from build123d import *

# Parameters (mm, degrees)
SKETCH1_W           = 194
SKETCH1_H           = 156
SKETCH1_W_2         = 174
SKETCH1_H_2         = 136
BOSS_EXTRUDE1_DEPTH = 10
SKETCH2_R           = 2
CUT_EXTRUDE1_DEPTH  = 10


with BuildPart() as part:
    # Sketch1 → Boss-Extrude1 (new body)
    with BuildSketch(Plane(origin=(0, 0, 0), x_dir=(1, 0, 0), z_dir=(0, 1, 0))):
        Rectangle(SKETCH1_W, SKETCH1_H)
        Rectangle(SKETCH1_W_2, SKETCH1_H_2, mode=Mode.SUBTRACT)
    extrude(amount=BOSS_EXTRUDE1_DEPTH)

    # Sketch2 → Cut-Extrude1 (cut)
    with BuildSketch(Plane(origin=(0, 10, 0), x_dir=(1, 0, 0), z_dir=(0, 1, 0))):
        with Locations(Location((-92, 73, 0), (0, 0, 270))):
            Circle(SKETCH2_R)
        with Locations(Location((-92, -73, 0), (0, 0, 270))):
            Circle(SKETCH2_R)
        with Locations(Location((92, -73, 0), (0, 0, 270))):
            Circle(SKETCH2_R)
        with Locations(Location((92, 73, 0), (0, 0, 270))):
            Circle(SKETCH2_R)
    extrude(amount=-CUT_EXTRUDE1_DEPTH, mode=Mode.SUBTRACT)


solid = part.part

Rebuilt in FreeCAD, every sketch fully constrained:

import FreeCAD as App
import Part
import Sketcher
Q = App.Units.Quantity

doc = App.newDocument("Part")
params = doc.addObject("Spreadsheet::Sheet", "Params")
for row, (alias, value) in enumerate([
    ("sketch1_width", "194 mm"),
    ("sketch1_width2", "174 mm"),
    ("sketch1_height", "156 mm"),
    ("sketch1_height2", "136 mm"),
    ("pad1_length", "10 mm"),
    ("sketch2_diameter", "4 mm"),
    ("pocket1_length", "10 mm"),
], start=1):
    params.set(f"A{row}", alias)
    params.set(f"B{row}", "=" + value)
    params.setAlias(f"B{row}", alias)

body = doc.addObject("PartDesign::Body", "Body")

# Sketch on XZ plane
sketch1 = body.newObject("Sketcher::SketchObject", "Sketch")
sketch1.AttachmentSupport = (doc.getObject("XZ_Plane"), [""])
sketch1.MapMode = "FlatFace"
sketch1.addGeometry(Part.LineSegment(App.Vector(-97, -78, 0), App.Vector(-97, 78, 0)), False)
sketch1.addGeometry(Part.LineSegment(App.Vector(-97, 78, 0), App.Vector(97, 78, 0)), False)
sketch1.addGeometry(Part.LineSegment(App.Vector(97, 78, 0), App.Vector(97, -78, 0)), False)
sketch1.addGeometry(Part.LineSegment(App.Vector(97, -78, 0), App.Vector(-97, -78, 0)), False)
sketch1.addGeometry(Part.LineSegment(App.Vector(87, 68, 0), App.Vector(-87, 68, 0)), False)
sketch1.addGeometry(Part.LineSegment(App.Vector(-87, 68, 0), App.Vector(-87, -68, 0)), False)
sketch1.addGeometry(Part.LineSegment(App.Vector(-87, -68, 0), App.Vector(87, -68, 0)), False)
sketch1.addGeometry(Part.LineSegment(App.Vector(87, -68, 0), App.Vector(87, 68, 0)), False)
sketch1.addConstraint(Sketcher.Constraint("Coincident", 0, 2, 1, 1))
sketch1.addConstraint(Sketcher.Constraint("Coincident", 1, 2, 2, 1))
sketch1.addConstraint(Sketcher.Constraint("Coincident", 2, 2, 3, 1))
sketch1.addConstraint(Sketcher.Constraint("Coincident", 3, 2, 0, 1))
sketch1.addConstraint(Sketcher.Constraint("Coincident", 4, 2, 5, 1))
sketch1.addConstraint(Sketcher.Constraint("Coincident", 5, 2, 6, 1))
sketch1.addConstraint(Sketcher.Constraint("Coincident", 6, 2, 7, 1))
sketch1.addConstraint(Sketcher.Constraint("Coincident", 7, 2, 4, 1))
sketch1.addConstraint(Sketcher.Constraint("Vertical", 0))
sketch1.addConstraint(Sketcher.Constraint("Horizontal", 1))
sketch1.addConstraint(Sketcher.Constraint("Vertical", 2))
sketch1.addConstraint(Sketcher.Constraint("Horizontal", 3))
sketch1.addConstraint(Sketcher.Constraint("Horizontal", 4))
sketch1.addConstraint(Sketcher.Constraint("Vertical", 5))
sketch1.addConstraint(Sketcher.Constraint("Horizontal", 6))
sketch1.addConstraint(Sketcher.Constraint("Vertical", 7))
sketch1.addConstraint(Sketcher.Constraint("Symmetric", 0, 2, 2, 2, -1, 1))
sketch1.addConstraint(Sketcher.Constraint("Symmetric", 4, 2, 6, 2, -1, 1))
sketch1.addConstraint(Sketcher.Constraint("DistanceX", 1, 1, 1, 2, Q("194 mm")))
sketch1.addConstraint(Sketcher.Constraint("DistanceX", 4, 2, 4, 1, Q("174 mm")))
sketch1.addConstraint(Sketcher.Constraint("DistanceY", 0, 1, 0, 2, Q("156 mm")))
sketch1.addConstraint(Sketcher.Constraint("DistanceY", 5, 2, 5, 1, Q("136 mm")))
sketch1.setExpression("Constraints[18]", "Params.sketch1_width")
sketch1.setExpression("Constraints[19]", "Params.sketch1_width2")
sketch1.setExpression("Constraints[20]", "Params.sketch1_height")
sketch1.setExpression("Constraints[21]", "Params.sketch1_height2")
pad1 = body.newObject("PartDesign::Pad", "Pad")
pad1.Profile = sketch1
pad1.setExpression("Length", "Params.pad1_length")
pad1.Reversed = True

# Sketch on XZ plane
sketch2 = body.newObject("Sketcher::SketchObject", "Sketch001")
sketch2.AttachmentSupport = (doc.getObject("XZ_Plane"), [""])
sketch2.MapMode = "FlatFace"
sketch2.AttachmentOffset = App.Placement(App.Vector(0, 0, -10), App.Rotation())
sketch2.addGeometry(Part.Circle(App.Vector(-92, -73, 0), App.Vector(0, 0, 1), 2), False)
sketch2.addGeometry(Part.Circle(App.Vector(-92, 73, 0), App.Vector(0, 0, 1), 2), False)
sketch2.addGeometry(Part.Circle(App.Vector(92, 73, 0), App.Vector(0, 0, 1), 2), False)
sketch2.addGeometry(Part.Circle(App.Vector(92, -73, 0), App.Vector(0, 0, 1), 2), False)
sketch2.addConstraint(Sketcher.Constraint("Equal", 0, 1))
sketch2.addConstraint(Sketcher.Constraint("Equal", 1, 2))
sketch2.addConstraint(Sketcher.Constraint("Equal", 2, 3))
sketch2.addConstraint(Sketcher.Constraint("Symmetric", 0, 3, 2, 3, -1, 1))
sketch2.addConstraint(Sketcher.Constraint("Symmetric", 1, 3, 3, 3, -1, 1))
sketch2.addConstraint(Sketcher.Constraint("Symmetric", 1, 3, 2, 3, -2))
sketch2.addConstraint(Sketcher.Constraint("Diameter", 0, Q("4 mm")))
sketch2.addConstraint(Sketcher.Constraint("DistanceX", 0, 3, -1, 1, Q("92 mm")))
sketch2.addConstraint(Sketcher.Constraint("DistanceY", 0, 3, -1, 1, Q("73 mm")))
sketch2.setExpression("Constraints[6]", "Params.sketch2_diameter")
pocket1 = body.newObject("PartDesign::Pocket", "Pocket")
pocket1.Profile = sketch2
pocket1.setExpression("Length", "Params.pocket1_length")
pocket1.Reversed = True

doc.recompute()
